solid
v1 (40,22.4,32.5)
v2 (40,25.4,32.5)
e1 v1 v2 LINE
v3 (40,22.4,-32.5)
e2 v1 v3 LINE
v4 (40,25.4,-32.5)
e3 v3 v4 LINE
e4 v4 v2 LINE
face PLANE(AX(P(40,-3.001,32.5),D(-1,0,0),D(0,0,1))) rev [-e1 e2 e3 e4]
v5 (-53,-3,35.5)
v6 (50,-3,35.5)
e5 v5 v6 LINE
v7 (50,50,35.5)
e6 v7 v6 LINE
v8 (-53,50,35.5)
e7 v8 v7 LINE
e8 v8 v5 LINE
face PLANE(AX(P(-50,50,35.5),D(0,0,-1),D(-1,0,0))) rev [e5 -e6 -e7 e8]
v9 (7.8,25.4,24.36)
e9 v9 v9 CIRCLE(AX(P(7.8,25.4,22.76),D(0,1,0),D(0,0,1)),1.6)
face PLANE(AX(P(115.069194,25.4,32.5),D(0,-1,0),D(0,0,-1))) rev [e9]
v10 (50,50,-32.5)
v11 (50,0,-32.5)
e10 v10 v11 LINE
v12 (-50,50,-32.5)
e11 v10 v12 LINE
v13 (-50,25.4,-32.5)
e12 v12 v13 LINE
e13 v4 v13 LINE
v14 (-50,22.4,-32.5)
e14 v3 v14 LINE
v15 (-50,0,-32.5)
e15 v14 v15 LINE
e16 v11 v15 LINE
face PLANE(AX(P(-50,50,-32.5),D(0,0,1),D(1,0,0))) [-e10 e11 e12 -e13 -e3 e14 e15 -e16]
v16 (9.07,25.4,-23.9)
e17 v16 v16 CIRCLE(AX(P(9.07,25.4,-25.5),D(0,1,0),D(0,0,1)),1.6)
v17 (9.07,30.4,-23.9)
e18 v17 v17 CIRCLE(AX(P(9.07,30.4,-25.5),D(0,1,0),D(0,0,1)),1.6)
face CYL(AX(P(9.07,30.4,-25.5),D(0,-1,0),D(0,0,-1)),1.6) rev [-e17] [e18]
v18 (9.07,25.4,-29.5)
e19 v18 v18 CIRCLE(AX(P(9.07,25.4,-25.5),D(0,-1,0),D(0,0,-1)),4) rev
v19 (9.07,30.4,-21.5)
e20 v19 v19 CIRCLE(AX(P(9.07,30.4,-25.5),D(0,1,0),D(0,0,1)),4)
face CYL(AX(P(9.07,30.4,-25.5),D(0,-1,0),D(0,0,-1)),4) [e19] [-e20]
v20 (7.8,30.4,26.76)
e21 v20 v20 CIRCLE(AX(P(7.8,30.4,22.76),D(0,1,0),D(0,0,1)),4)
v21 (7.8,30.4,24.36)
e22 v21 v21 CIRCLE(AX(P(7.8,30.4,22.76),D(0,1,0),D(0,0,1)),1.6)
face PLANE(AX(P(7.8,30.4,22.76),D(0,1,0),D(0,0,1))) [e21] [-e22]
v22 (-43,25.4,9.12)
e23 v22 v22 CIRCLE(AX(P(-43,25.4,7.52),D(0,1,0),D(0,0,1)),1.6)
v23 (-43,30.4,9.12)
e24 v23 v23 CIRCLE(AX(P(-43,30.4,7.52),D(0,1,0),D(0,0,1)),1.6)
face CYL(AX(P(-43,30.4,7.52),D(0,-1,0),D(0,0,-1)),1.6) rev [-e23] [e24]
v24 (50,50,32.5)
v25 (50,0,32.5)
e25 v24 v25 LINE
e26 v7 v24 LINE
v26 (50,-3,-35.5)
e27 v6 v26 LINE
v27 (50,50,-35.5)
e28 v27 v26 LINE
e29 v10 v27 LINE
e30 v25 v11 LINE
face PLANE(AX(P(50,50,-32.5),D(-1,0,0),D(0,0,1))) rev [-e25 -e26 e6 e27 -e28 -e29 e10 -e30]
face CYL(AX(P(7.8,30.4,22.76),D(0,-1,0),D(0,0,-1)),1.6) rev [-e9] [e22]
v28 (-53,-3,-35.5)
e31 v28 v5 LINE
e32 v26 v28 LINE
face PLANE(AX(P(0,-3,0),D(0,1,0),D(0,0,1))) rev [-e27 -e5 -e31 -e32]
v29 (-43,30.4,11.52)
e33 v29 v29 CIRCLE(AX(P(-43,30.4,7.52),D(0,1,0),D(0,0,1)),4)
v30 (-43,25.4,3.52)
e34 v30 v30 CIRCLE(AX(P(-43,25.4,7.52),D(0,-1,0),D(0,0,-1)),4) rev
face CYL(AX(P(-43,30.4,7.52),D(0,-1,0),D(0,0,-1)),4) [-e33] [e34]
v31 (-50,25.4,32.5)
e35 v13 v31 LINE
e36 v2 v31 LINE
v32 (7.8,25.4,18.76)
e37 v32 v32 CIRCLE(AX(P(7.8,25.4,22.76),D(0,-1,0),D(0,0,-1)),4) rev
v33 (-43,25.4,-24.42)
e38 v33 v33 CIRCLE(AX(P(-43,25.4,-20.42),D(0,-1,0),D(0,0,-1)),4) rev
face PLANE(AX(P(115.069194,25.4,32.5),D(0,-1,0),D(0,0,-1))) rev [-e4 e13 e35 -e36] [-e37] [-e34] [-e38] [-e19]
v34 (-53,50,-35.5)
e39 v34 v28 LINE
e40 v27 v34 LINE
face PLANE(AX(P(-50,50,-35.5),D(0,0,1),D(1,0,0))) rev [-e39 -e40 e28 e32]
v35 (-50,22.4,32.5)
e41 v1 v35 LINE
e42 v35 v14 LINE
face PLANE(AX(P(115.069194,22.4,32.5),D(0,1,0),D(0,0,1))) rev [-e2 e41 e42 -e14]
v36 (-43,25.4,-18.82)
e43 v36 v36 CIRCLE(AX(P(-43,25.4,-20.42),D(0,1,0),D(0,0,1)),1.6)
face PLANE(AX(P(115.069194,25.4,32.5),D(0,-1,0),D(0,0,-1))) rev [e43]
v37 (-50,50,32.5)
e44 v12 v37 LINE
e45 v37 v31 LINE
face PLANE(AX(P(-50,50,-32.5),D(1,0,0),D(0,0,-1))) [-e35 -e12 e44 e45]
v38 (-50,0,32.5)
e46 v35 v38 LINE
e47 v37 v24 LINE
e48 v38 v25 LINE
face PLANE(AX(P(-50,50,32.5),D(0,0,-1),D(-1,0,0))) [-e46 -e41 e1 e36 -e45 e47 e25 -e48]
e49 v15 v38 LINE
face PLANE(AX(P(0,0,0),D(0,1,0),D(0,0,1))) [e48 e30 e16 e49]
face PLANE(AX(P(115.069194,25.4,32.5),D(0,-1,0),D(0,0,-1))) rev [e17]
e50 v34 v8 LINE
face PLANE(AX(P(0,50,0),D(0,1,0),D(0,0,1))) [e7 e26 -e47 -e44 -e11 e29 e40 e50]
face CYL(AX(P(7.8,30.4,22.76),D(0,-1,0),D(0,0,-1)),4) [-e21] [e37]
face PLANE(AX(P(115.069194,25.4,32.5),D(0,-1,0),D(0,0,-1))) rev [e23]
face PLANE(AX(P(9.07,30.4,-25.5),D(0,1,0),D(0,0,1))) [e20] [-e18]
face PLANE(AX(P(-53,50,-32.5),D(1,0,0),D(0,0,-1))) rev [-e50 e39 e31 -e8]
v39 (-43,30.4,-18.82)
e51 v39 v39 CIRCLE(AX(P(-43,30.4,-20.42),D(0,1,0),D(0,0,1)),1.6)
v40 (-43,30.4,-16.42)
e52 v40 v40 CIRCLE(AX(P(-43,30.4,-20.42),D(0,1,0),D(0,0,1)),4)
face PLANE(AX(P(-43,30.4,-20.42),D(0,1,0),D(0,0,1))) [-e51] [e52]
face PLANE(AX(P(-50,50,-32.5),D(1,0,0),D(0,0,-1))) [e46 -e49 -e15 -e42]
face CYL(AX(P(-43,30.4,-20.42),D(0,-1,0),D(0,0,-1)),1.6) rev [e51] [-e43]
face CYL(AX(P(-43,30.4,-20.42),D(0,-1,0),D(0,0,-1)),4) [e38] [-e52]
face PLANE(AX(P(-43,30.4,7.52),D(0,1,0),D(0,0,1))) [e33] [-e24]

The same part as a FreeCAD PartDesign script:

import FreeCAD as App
import Part
import Sketcher
from FreeCAD import Vector


def faces_at(feature, points):
    """Names of the faces that lie closest to the given points."""
    faces = feature.Shape.Faces
    near = lambda p: min(range(len(faces)), key=lambda i: faces[i].distToShape(Part.Vertex(*p))[0])
    return sorted({f"Face{near(p) + 1}" for p in points})

doc = App.newDocument("Part")
body = doc.addObject("PartDesign::Body", "Body")

# Sketch on XZ plane
sketch1 = doc.addObject("Sketcher::SketchObject", "Sketch")
body.addObject(sketch1)
sketch1.AttachmentSupport = (doc.XZ_Plane, [""])
sketch1.MapMode = "FlatFace"
sketch1.addGeometry([
    Part.LineSegment(Vector(-50, -32, 0), Vector(-50, 32, 0)),
    Part.LineSegment(Vector(-50, 32, 0), Vector(50, 32, 0)),
    Part.LineSegment(Vector(50, 32, 0), Vector(50, -32, 0)),
    Part.LineSegment(Vector(50, -32, 0), Vector(-50, -32, 0)),
], False)
sketch1.addConstraint([
    Sketcher.Constraint("Coincident", 0, 2, 1, 1),
    Sketcher.Constraint("Coincident", 1, 2, 2, 1),
    Sketcher.Constraint("Coincident", 2, 2, 3, 1),
    Sketcher.Constraint("Coincident", 3, 2, 0, 1),
    Sketcher.Constraint("Vertical", 0),
    Sketcher.Constraint("Horizontal", 1),
    Sketcher.Constraint("Vertical", 2),
    Sketcher.Constraint("Horizontal", 3),
    Sketcher.Constraint("Symmetric", 0, 2, 2, 2, -1, 1),
    Sketcher.Constraint("DistanceX", 1, 1, 1, 2, 100.0),
    Sketcher.Constraint("DistanceY", 0, 1, 0, 2, 65.0),
])
pad1 = doc.addObject("PartDesign::Pad", "Pad")
body.addObject(pad1)
pad1.Profile = sketch1
pad1.Length = 50
pad1.Reversed = True
doc.recompute()

thickness = doc.addObject("PartDesign::Thickness", "Thickness")
body.addObject(thickness)
thickness.Base = (pad1, faces_at(pad1, [(50, 25, 0), (0, 50, 0)]))
thickness.Value = 3
thickness.Reversed = False
thickness.Join = "Intersection"

# Sketch on YZ plane
sketch2 = doc.addObject("Sketcher::SketchObject", "Sketch001")
body.addObject(sketch2)
sketch2.AttachmentSupport = (doc.YZ_Plane, [""])
sketch2.MapMode = "FlatFace"
sketch2.AttachmentOffset = App.Placement(Vector(0, 0, -50), App.Rotation())
sketch2.addGeometry([
    Part.LineSegment(Vector(25.4, 32.5, 0), Vector(22.4, 32.5, 0)),
    Part.LineSegment(Vector(22.4, 32.5, 0), Vector(22.4, -32.5, 0)),
    Part.LineSegment(Vector(22.4, -32.5, 0), Vector(25.4, -32.5, 0)),
    Part.LineSegment(Vector(25.4, -32.5, 0), Vector(25.4, 32.5, 0)),
], False)
sketch2.addConstraint([
    Sketcher.Constraint("Coincident", 0, 2, 1, 1),
    Sketcher.Constraint("Coincident", 1, 2, 2, 1),
    Sketcher.Constraint("Coincident", 2, 2, 3, 1),
    Sketcher.Constraint("Coincident", 3, 2, 0, 1),
    Sketcher.Constraint("Horizontal", 0),
    Sketcher.Constraint("Vertical", 1),
    Sketcher.Constraint("Horizontal", 2),
    Sketcher.Constraint("Vertical", 3),
    Sketcher.Constraint("DistanceX", 0, 2, 0, 1, 3.0),
    Sketcher.Constraint("DistanceY", 1, 2, 1, 1, 65.0),
    Sketcher.Constraint("DistanceX", -1, 1, 0, 2, 22.4),
    Sketcher.Constraint("DistanceY", -1, 1, 0, 2, 32.5),
])
pad2 = doc.addObject("PartDesign::Pad", "Pad001")
body.addObject(pad2)
pad2.Profile = sketch2
pad2.Length = 100

# Sketch on XZ plane
sketch3 = doc.addObject("Sketcher::SketchObject", "Sketch002")
body.addObject(sketch3)
sketch3.AttachmentSupport = (doc.XZ_Plane, [""])
sketch3.MapMode = "FlatFace"
sketch3.AttachmentOffset = App.Placement(Vector(0, 0, -25.4), App.Rotation())
sketch3.addGeometry([
    Part.LineSegment(Vector(40, -32, 0), Vector(40, 32, 0)),
    Part.LineSegment(Vector(40, 32, 0), Vector(50, 32, 0)),
    Part.LineSegment(Vector(50, 32, 0), Vector(50, -32, 0)),
    Part.LineSegment(Vector(50, -32, 0), Vector(40, -32, 0)),
], False)
sketch3.addConstraint([
    Sketcher.Constraint("Coincident", 0, 2, 1, 1),
    Sketcher.Constraint("Coincident", 1, 2, 2, 1),
    Sketcher.Constraint("Coincident", 2, 2, 3, 1),
    Sketcher.Constraint("Coincident", 3, 2, 0, 1),
    Sketcher.Constraint("Vertical", 0),
    Sketcher.Constraint("Horizontal", 1),
    Sketcher.Constraint("Vertical", 2),
    Sketcher.Constraint("Horizontal", 3),
    Sketcher.Constraint("DistanceX", 1, 1, 1, 2, 10.0),
    Sketcher.Constraint("DistanceY", 0, 1, 0, 2, 65.0),
    Sketcher.Constraint("DistanceX", -1, 1, 0, 2, 40.0),
    Sketcher.Constraint("DistanceY", -1, 1, 0, 2, 32.5),
])
pocket1 = doc.addObject("PartDesign::Pocket", "Pocket")
body.addObject(pocket1)
pocket1.Profile = sketch3
pocket1.Type = "UpToFirst"
pocket1.Reversed = True

# Sketch on XZ plane
sketch4 = doc.addObject("Sketcher::SketchObject", "Sketch003")
body.addObject(sketch4)
sketch4.AttachmentSupport = (doc.XZ_Plane, [""])
sketch4.MapMode = "FlatFace"
sketch4.AttachmentOffset = App.Placement(Vector(0, 0, -25.4), App.Rotation())
sketch4.addGeometry([
    Part.Circle(Vector(9.1, -25.5, 0), Vector(0, 0, 1), 4),  # 0
    Part.Circle(Vector(9.1, -25.5, 0), Vector(0, 0, 1), 1.6),  # 1
    Part.Circle(Vector(7.8, 22.8, 0), Vector(0, 0, 1), 4),  # 2
    Part.Circle(Vector(7.8, 22.8, 0), Vector(0, 0, 1), 1.6),  # 3
    Part.Circle(Vector(-43, 7.5, 0), Vector(0, 0, 1), 4),  # 4
    Part.Circle(Vector(-43, 7.5, 0), Vector(0, 0, 1), 1.6),  # 5
    Part.Circle(Vector(-43, -20.4, 0), Vector(0, 0, 1), 4),  # 6
    Part.Circle(Vector(-43, -20.4, 0), Vector(0, 0, 1), 1.6),  # 7
], False)
sketch4.addConstraint([
    Sketcher.Constraint("Coincident", 1, 3, 0, 3),
    Sketcher.Constraint("Coincident", 3, 3, 2, 3),
    Sketcher.Constraint("Coincident", 5, 3, 4, 3),
    Sketcher.Constraint("Coincident", 7, 3, 6, 3),
    Sketcher.Constraint("Equal", 0, 2),
    Sketcher.Constraint("Equal", 1, 3),
    Sketcher.Constraint("Equal", 2, 4),
    Sketcher.Constraint("Equal", 3, 5),
    Sketcher.Constraint("Equal", 4, 6),
    Sketcher.Constraint("Equal", 5, 7),
    Sketcher.Constraint("Vertical", 5, 3, 6, 3),
    Sketcher.Constraint("Diameter", 0, 8.0),
    Sketcher.Constraint("Diameter", 1, 3.2),
    Sketcher.Constraint("DistanceX", 4, 3, -1, 1, 43.0),
    Sketcher.Constraint("DistanceY", 0, 3, -1, 1, 25.5),
    Sketcher.Constraint("DistanceX", -1, 1, 2, 3, 7.8),
    Sketcher.Constraint("DistanceX", -1, 1, 0, 3, 9.07),
    Sketcher.Constraint("DistanceY", -1, 1, 2, 3, 22.76),
    Sketcher.Constraint("DistanceY", -1, 1, 4, 3, 7.52),
    Sketcher.Constraint("DistanceY", 6, 3, -1, 1, 20.42),
])
pad3 = doc.addObject("PartDesign::Pad", "Pad002")
body.addObject(pad3)
pad3.Profile = sketch4
pad3.Length = 5
pad3.Reversed = True

doc.recompute()
